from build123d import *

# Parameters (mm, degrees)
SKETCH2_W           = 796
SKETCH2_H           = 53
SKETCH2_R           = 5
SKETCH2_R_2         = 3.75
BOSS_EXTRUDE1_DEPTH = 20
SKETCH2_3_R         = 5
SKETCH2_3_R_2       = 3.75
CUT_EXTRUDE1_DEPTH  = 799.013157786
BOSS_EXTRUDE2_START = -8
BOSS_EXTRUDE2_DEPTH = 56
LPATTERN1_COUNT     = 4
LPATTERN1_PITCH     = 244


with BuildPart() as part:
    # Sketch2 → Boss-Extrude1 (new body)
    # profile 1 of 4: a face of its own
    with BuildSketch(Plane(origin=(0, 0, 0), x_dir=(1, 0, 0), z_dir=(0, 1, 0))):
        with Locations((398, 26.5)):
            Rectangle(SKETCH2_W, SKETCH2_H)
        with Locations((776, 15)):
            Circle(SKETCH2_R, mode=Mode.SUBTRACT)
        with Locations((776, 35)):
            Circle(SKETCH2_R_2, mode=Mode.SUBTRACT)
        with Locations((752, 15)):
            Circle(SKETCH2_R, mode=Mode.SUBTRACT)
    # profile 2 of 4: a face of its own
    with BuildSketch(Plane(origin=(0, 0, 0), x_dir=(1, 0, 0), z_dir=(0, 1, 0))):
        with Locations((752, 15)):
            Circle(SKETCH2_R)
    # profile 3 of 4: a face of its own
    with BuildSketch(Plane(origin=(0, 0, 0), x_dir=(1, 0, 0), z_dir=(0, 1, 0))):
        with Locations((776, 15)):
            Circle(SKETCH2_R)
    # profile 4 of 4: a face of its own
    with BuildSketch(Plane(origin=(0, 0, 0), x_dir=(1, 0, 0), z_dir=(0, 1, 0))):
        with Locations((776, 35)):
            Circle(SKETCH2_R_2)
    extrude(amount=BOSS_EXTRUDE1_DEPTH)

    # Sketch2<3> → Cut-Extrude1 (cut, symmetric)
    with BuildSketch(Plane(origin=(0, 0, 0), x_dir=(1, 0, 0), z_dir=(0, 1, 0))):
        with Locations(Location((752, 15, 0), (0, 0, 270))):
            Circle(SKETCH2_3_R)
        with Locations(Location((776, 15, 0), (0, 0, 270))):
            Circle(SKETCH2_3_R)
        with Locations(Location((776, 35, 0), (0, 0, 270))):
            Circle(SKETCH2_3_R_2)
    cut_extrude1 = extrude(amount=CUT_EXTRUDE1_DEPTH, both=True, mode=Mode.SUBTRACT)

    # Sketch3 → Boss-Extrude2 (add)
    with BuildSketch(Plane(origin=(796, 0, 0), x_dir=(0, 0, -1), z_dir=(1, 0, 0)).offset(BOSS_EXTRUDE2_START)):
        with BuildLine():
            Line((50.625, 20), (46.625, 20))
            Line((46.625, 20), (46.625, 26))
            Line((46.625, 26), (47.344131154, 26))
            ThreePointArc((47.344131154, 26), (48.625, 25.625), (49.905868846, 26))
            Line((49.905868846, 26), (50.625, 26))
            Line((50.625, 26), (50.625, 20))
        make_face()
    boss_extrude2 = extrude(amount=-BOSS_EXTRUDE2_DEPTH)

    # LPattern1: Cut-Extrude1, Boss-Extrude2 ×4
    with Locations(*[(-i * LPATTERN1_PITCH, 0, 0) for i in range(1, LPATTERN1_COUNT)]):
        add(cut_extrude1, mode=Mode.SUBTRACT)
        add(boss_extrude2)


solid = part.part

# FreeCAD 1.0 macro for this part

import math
import FreeCAD as App
import Part
import Sketcher

V = App.Vector
Q = App.Units.Quantity


def add_polygon(sketch, points):
    """Adds a closed chain of lines whose ends are joined by coincident constraints."""
    first, n = sketch.GeometryCount, len(points)
    for a, b in zip(points, points[1:] + points[:1]):
        sketch.addGeometry(Part.LineSegment(App.Vector(*a, 0), App.Vector(*b, 0)), False)
    for i in range(n):
        sketch.addConstraint(Sketcher.Constraint("Coincident", first + i, 2, first + (i + 1) % n, 1))

doc = App.newDocument("Part")
body = doc.addObject("PartDesign::Body", "Body")

# Sketch on XZ plane
sketch1 = body.newObject("Sketcher::SketchObject", "Sketch")
sketch1.AttachmentSupport = (doc.getObject("XZ_Plane"), [""])
sketch1.MapMode = "FlatFace"
add_polygon(sketch1, [(0, -53), (0, 0), (796, 0), (796, -53)])  # lines 0-3
sketch1.addConstraint(Sketcher.Constraint("Vertical", 0))
sketch1.addConstraint(Sketcher.Constraint("Horizontal", 1))
sketch1.addConstraint(Sketcher.Constraint("Vertical", 2))
sketch1.addConstraint(Sketcher.Constraint("Horizontal", 3))
sketch1.addConstraint(Sketcher.Constraint("Coincident", 0, 2, -1, 1))
sketch1.addConstraint(Sketcher.Constraint("DistanceX", 1, 1, 1, 2, Q("796 mm")))
sketch1.addConstraint(Sketcher.Constraint("DistanceY", 0, 1, 0, 2, Q("53 mm")))
pad1 = body.newObject("PartDesign::Pad", "Pad")
pad1.Profile = sketch1
pad1.Length = 20
pad1.Reversed = True

# Sketch on XZ plane
sketch2 = body.newObject("Sketcher::SketchObject", "Sketch001")
sketch2.AttachmentSupport = (doc.getObject("XZ_Plane"), [""])
sketch2.MapMode = "FlatFace"
sketch2.addGeometry(Part.Circle(V(752, -15, 0), V(0, 0, 1), 5), False)
sketch2.addGeometry(Part.Circle(V(776, -15, 0), V(0, 0, 1), 5), False)
sketch2.addGeometry(Part.Circle(V(776, -35, 0), V(0, 0, 1), 3.8), False)
sketch2.addConstraint(Sketcher.Constraint("Equal", 0, 1))
sketch2.addConstraint(Sketcher.Constraint("Horizontal", 0, 3, 1, 3))
sketch2.addConstraint(Sketcher.Constraint("Vertical", 1, 3, 2, 3))
sketch2.addConstraint(Sketcher.Constraint("Diameter", 0, Q("10 mm")))
sketch2.addConstraint(Sketcher.Constraint("Diameter", 2, Q("7.5 mm")))
sketch2.addConstraint(Sketcher.Constraint("DistanceX", -1, 1, 0, 3, Q("752 mm")))
sketch2.addConstraint(Sketcher.Constraint("DistanceY", 0, 3, -1, 1, Q("15 mm")))
sketch2.addConstraint(Sketcher.Constraint("DistanceX", -1, 1, 1, 3, Q("776 mm")))
sketch2.addConstraint(Sketcher.Constraint("DistanceY", 2, 3, -1, 1, Q("35 mm")))
pocket1 = body.newObject("PartDesign::Pocket", "Pocket")
pocket1.Profile = sketch2
pocket1.Length = 1598.026316
pocket1.Midplane = True

# Sketch on YZ plane
sketch3 = body.newObject("Sketcher::SketchObject", "Sketch002")
sketch3.AttachmentSupport = (doc.getObject("YZ_Plane"), [""])
sketch3.MapMode = "FlatFace"
sketch3.AttachmentOffset = App.Placement(V(0, 0, 788), App.Rotation())
sketch3.addGeometry(Part.LineSegment(V(20, -46.6, 0), V(20, -50.6, 0)), False)
sketch3.addGeometry(Part.LineSegment(V(20, -50.6, 0), V(26, -50.6, 0)), False)
sketch3.addGeometry(Part.LineSegment(V(26, -50.6, 0), V(26, -49.9, 0)), False)
sketch3.addGeometry(Part.ArcOfCircle(Part.Circle(V(28, -48.6, 0), V(0, 0, 1), 2.4), math.radians(147), math.radians(213)), False)
sketch3.addGeometry(Part.LineSegment(V(26, -47.3, 0), V(26, -46.6, 0)), False)
sketch3.addGeometry(Part.LineSegment(V(26, -46.6, 0), V(20, -46.6, 0)), False)
sketch3.addConstraint(Sketcher.Constraint("Coincident", 0, 2, 1, 1))
sketch3.addConstraint(Sketcher.Constraint("Coincident", 1, 2, 2, 1))
sketch3.addConstraint(Sketcher.Constraint("Coincident", 2, 2, 3, 2))
sketch3.addConstraint(Sketcher.Constraint("Coincident", 3, 1, 4, 1))
sketch3.addConstraint(Sketcher.Constraint("Coincident", 4, 2, 5, 1))
sketch3.addConstraint(Sketcher.Constraint("Coincident", 5, 2, 0, 1))
sketch3.addConstraint(Sketcher.Constraint("Vertical", 0))
sketch3.addConstraint(Sketcher.Constraint("Horizontal", 1))
sketch3.addConstraint(Sketcher.Constraint("Vertical", 2))
sketch3.addConstraint(Sketcher.Constraint("Vertical", 4))
sketch3.addConstraint(Sketcher.Constraint("Horizontal", 5))
sketch3.addConstraint(Sketcher.Constraint("Vertical", 2, 2, 3, 1))
sketch3.addConstraint(Sketcher.Constraint("Equal", 2, 4))
sketch3.addConstraint(Sketcher.Constraint("DistanceX", 1, 1, 1, 2, Q("6 mm")))
sketch3.addConstraint(Sketcher.Constraint("DistanceY", 0, 2, 0, 1, Q("4 mm")))
sketch3.addConstraint(Sketcher.Constraint("DistanceX", -1, 1, 3, 3, Q("28 mm")))
sketch3.addConstraint(Sketcher.Constraint("DistanceX", -1, 1, 0, 2, Q("20 mm")))
sketch3.addConstraint(Sketcher.Constraint("Radius", 3, Q("2.375 mm")))
sketch3.addConstraint(Sketcher.Constraint("DistanceY", 3, 3, -1, 1, Q("48.625 mm")))
pad2 = body.newObject("PartDesign::Pad", "Pad001")
pad2.Profile = sketch3
pad2.Length = 56
pad2.Reversed = True
doc.recompute()

linearpattern = body.newObject("PartDesign::LinearPattern", "LinearPattern")
linearpattern.Originals = [pocket1, pad2]
linearpattern.Direction = (doc.getObject("X_Axis"), [""])
linearpattern.Mode = "offset"
linearpattern.Offset = 244
linearpattern.Occurrences = 4
linearpattern.Reversed = True
body.Tip = linearpattern

doc.recompute()
